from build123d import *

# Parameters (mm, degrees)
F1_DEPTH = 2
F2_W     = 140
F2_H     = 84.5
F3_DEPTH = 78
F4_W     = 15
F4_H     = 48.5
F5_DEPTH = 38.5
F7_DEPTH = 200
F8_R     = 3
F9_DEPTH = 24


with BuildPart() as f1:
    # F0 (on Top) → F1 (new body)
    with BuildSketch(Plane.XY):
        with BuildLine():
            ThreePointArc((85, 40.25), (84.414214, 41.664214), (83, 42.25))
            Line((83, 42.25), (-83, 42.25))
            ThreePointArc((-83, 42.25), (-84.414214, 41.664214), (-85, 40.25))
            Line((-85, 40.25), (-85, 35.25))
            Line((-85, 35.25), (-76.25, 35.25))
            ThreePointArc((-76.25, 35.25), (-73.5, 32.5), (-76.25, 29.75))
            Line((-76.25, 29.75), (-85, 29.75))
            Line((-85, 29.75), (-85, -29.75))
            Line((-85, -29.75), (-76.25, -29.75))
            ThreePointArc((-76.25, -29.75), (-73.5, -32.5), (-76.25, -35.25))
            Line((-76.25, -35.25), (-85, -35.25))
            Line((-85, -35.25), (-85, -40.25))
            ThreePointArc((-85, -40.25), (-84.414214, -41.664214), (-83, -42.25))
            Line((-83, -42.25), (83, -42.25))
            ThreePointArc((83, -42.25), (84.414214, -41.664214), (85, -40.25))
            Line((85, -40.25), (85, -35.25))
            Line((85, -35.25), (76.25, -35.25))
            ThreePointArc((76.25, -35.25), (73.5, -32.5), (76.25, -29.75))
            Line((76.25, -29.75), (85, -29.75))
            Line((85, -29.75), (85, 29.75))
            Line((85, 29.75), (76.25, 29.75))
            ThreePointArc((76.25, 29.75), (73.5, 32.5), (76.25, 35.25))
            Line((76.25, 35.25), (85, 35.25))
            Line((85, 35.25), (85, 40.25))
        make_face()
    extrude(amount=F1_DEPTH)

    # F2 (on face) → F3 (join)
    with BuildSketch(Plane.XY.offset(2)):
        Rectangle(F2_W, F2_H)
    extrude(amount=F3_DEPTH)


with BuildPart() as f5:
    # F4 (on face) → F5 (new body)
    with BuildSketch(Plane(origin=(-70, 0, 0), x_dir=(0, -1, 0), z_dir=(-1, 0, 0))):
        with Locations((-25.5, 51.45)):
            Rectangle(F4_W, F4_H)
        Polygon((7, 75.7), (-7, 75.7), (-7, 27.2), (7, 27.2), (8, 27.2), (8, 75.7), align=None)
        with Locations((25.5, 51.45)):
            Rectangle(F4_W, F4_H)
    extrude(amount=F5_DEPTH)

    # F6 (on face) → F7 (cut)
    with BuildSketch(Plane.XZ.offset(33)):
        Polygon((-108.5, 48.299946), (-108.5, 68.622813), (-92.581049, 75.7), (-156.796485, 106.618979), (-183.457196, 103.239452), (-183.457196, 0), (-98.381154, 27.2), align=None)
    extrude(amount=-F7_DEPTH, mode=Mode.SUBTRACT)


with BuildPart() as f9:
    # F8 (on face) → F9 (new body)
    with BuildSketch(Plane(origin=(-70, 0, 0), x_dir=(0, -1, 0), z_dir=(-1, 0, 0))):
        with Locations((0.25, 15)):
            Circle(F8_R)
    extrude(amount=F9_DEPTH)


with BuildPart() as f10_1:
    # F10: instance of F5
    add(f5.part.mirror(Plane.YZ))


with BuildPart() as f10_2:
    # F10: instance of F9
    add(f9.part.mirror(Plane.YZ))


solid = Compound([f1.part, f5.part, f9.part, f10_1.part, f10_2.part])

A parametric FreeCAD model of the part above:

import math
import FreeCAD as App
import Part
import Sketcher
Q = App.Units.Quantity


def add_polygon(sketch, points):
    """Adds a closed chain of lines whose ends are joined by coincident constraints."""
    first, n = sketch.GeometryCount, len(points)
    for a, b in zip(points, points[1:] + points[:1]):
        sketch.addGeometry(Part.LineSegment(App.Vector(*a, 0), App.Vector(*b, 0)), False)
    for i in range(n):
        sketch.addConstraint(Sketcher.Constraint("Coincident", first + i, 2, first + (i + 1) % n, 1))

doc = App.newDocument("Part")
body = doc.addObject("PartDesign::Body", "Body")

sketch1 = body.newObject("Sketcher::SketchObject", "Sketch")
sketch1.AttachmentSupport = (doc.getObject("XY_Plane"), [""])
sketch1.MapMode = "FlatFace"
sketch1.addGeometry(Part.ArcOfCircle(Part.Circle(App.Vector(83, 40.3, 0), App.Vector(0, 0, 1), 2), math.radians(0), math.radians(90)), False)
sketch1.addGeometry(Part.LineSegment(App.Vector(83, 42.2, 0), App.Vector(-83, 42.2, 0)), False)
sketch1.addGeometry(Part.ArcOfCircle(Part.Circle(App.Vector(-83, 40.3, 0), App.Vector(0, 0, 1), 2), math.radians(90), math.radians(180)), False)
sketch1.addGeometry(Part.LineSegment(App.Vector(-85, 40.2, 0), App.Vector(-85, 35.2, 0)), False)
sketch1.addGeometry(Part.LineSegment(App.Vector(-85, 35.2, 0), App.Vector(-76.2, 35.2, 0)), False)
sketch1.addGeometry(Part.ArcOfCircle(Part.Circle(App.Vector(-76.2, 32.5, 0), App.Vector(0, 0, 1), 2.8), math.radians(-90), math.radians(90)), False)
sketch1.addGeometry(Part.LineSegment(App.Vector(-76.2, 29.8, 0), App.Vector(-85, 29.8, 0)), False)
sketch1.addGeometry(Part.LineSegment(App.Vector(-85, 29.8, 0), App.Vector(-85, -29.8, 0)), False)
sketch1.addGeometry(Part.LineSegment(App.Vector(-85, -29.8, 0), App.Vector(-76.2, -29.8, 0)), False)
sketch1.addGeometry(Part.ArcOfCircle(Part.Circle(App.Vector(-76.2, -32.5, 0), App.Vector(0, 0, 1), 2.8), math.radians(-90), math.radians(90)), False)
sketch1.addGeometry(Part.LineSegment(App.Vector(-76.2, -35.2, 0), App.Vector(-85, -35.2, 0)), False)
sketch1.addGeometry(Part.LineSegment(App.Vector(-85, -35.2, 0), App.Vector(-85, -40.2, 0)), False)
sketch1.addGeometry(Part.ArcOfCircle(Part.Circle(App.Vector(-83, -40.3, 0), App.Vector(0, 0, 1), 2), math.radians(180), math.radians(270)), False)
sketch1.addGeometry(Part.LineSegment(App.Vector(-83, -42.2, 0), App.Vector(83, -42.2, 0)), False)
sketch1.addGeometry(Part.ArcOfCircle(Part.Circle(App.Vector(83, -40.3, 0), App.Vector(0, 0, 1), 2), math.radians(-90), math.radians(0)), False)
sketch1.addGeometry(Part.LineSegment(App.Vector(85, -40.2, 0), App.Vector(85, -35.2, 0)), False)
sketch1.addGeometry(Part.LineSegment(App.Vector(85, -35.2, 0), App.Vector(76.2, -35.2, 0)), False)
sketch1.addGeometry(Part.ArcOfCircle(Part.Circle(App.Vector(76.2, -32.5, 0), App.Vector(0, 0, 1), 2.8), math.radians(90), math.radians(270)), False)
sketch1.addGeometry(Part.LineSegment(App.Vector(76.2, -29.8, 0), App.Vector(85, -29.8, 0)), False)
sketch1.addGeometry(Part.LineSegment(App.Vector(85, -29.8, 0), App.Vector(85, 29.8, 0)), False)
sketch1.addGeometry(Part.LineSegment(App.Vector(85, 29.8, 0), App.Vector(76.2, 29.8, 0)), False)
sketch1.addGeometry(Part.ArcOfCircle(Part.Circle(App.Vector(76.2, 32.5, 0), App.Vector(0, 0, 1), 2.8), math.radians(90), math.radians(270)), False)
sketch1.addGeometry(Part.LineSegment(App.Vector(76.2, 35.2, 0), App.Vector(85, 35.2, 0)), False)
sketch1.addGeometry(Part.LineSegment(App.Vector(85, 35.2, 0), App.Vector(85, 40.2, 0)), False)
sketch1.addConstraint(Sketcher.Constraint("Tangent", 0, 2, 1, 1))
sketch1.addConstraint(Sketcher.Constraint("Tangent", 1, 2, 2, 1))
sketch1.addConstraint(Sketcher.Constraint("Tangent", 2, 2, 3, 1))
sketch1.addConstraint(Sketcher.Constraint("Coincident", 3, 2, 4, 1))
sketch1.addConstraint(Sketcher.Constraint("Tangent", 4, 2, 5, 2))
sketch1.addConstraint(Sketcher.Constraint("Tangent", 5, 1, 6, 1))
sketch1.addConstraint(Sketcher.Constraint("Coincident", 6, 2, 7, 1))
sketch1.addConstraint(Sketcher.Constraint("Coincident", 7, 2, 8, 1))
sketch1.addConstraint(Sketcher.Constraint("Tangent", 8, 2, 9, 2))
sketch1.addConstraint(Sketcher.Constraint("Tangent", 9, 1, 10, 1))
sketch1.addConstraint(Sketcher.Constraint("Coincident", 10, 2, 11, 1))
sketch1.addConstraint(Sketcher.Constraint("Tangent", 11, 2, 12, 1))
sketch1.addConstraint(Sketcher.Constraint("Tangent", 12, 2, 13, 1))
sketch1.addConstraint(Sketcher.Constraint("Tangent", 13, 2, 14, 1))
sketch1.addConstraint(Sketcher.Constraint("Tangent", 14, 2, 15, 1))
sketch1.addConstraint(Sketcher.Constraint("Coincident", 15, 2, 16, 1))
sketch1.addConstraint(Sketcher.Constraint("Tangent", 16, 2, 17, 2))
sketch1.addConstraint(Sketcher.Constraint("Tangent", 17, 1, 18, 1))
sketch1.addConstraint(Sketcher.Constraint("Coincident", 18, 2, 19, 1))
sketch1.addConstraint(Sketcher.Constraint("Coincident", 19, 2, 20, 1))
sketch1.addConstraint(Sketcher.Constraint("Tangent", 20, 2, 21, 2))
sketch1.addConstraint(Sketcher.Constraint("Tangent", 21, 1, 22, 1))
sketch1.addConstraint(Sketcher.Constraint("Coincident", 22, 2, 23, 1))
sketch1.addConstraint(Sketcher.Constraint("Tangent", 23, 2, 0, 1))
sketch1.addConstraint(Sketcher.Constraint("Horizontal", 1))
sketch1.addConstraint(Sketcher.Constraint("Vertical", 3))
sketch1.addConstraint(Sketcher.Constraint("Horizontal", 4))
sketch1.addConstraint(Sketcher.Constraint("Horizontal", 6))
sketch1.addConstraint(Sketcher.Constraint("Vertical", 7))
sketch1.addConstraint(Sketcher.Constraint("Horizontal", 8))
sketch1.addConstraint(Sketcher.Constraint("Horizontal", 10))
sketch1.addConstraint(Sketcher.Constraint("Vertical", 11))
sketch1.addConstraint(Sketcher.Constraint("Horizontal", 13))
sketch1.addConstraint(Sketcher.Constraint("Vertical", 15))
sketch1.addConstraint(Sketcher.Constraint("Horizontal", 16))
sketch1.addConstraint(Sketcher.Constraint("Horizontal", 18))
sketch1.addConstraint(Sketcher.Constraint("Vertical", 19))
sketch1.addConstraint(Sketcher.Constraint("Horizontal", 20))
sketch1.addConstraint(Sketcher.Constraint("Horizontal", 22))
sketch1.addConstraint(Sketcher.Constraint("Vertical", 23))
sketch1.addConstraint(Sketcher.Constraint("Equal", 0, 2))
sketch1.addConstraint(Sketcher.Constraint("Equal", 5, 9))
sketch1.addConstraint(Sketcher.Constraint("Equal", 2, 12))
sketch1.addConstraint(Sketcher.Constraint("Equal", 12, 14))
sketch1.addConstraint(Sketcher.Constraint("Equal", 9, 17))
sketch1.addConstraint(Sketcher.Constraint("Equal", 17, 21))
sketch1.addConstraint(Sketcher.Constraint("Symmetric", 0, 3, 12, 3, -1, 1))
sketch1.addConstraint(Sketcher.Constraint("Symmetric", 5, 3, 17, 3, -1, 1))
sketch1.addConstraint(Sketcher.Constraint("Symmetric", 9, 3, 21, 3, -1, 1))
sketch1.addConstraint(Sketcher.Constraint("Symmetric", 9, 3, 17, 3, -2))
sketch1.addConstraint(Sketcher.Constraint("Vertical", 2, 3, 12, 3))
sketch1.addConstraint(Sketcher.Constraint("Vertical", 0, 3, 14, 3))
sketch1.addConstraint(Sketcher.Constraint("Vertical", 3, 2, 6, 2))
sketch1.addConstraint(Sketcher.Constraint("Vertical", 15, 2, 18, 2))
sketch1.addConstraint(Sketcher.Constraint("Radius", 0, Q("1.999999 mm")))
sketch1.addConstraint(Sketcher.Constraint("DistanceX", 1, 2, 1, 1, Q("166 mm")))
sketch1.addConstraint(Sketcher.Constraint("DistanceY", 3, 2, 3, 1, Q("5 mm")))
sketch1.addConstraint(Sketcher.Constraint("Radius", 5, Q("2.75 mm")))
sketch1.addConstraint(Sketcher.Constraint("DistanceY", 7, 2, 7, 1, Q("59.5 mm")))
sketch1.addConstraint(Sketcher.Constraint("DistanceX", 4, 1, 4, 2, Q("8.75 mm")))
pad1 = body.newObject("PartDesign::Pad", "Pad")
pad1.Profile = sketch1
pad1.Length = 2

sketch2 = body.newObject("Sketcher::SketchObject", "Sketch001")
sketch2.AttachmentSupport = (doc.getObject("XY_Plane"), [""])
sketch2.MapMode = "FlatFace"
sketch2.AttachmentOffset = App.Placement(App.Vector(0, 0, 2), App.Rotation())
add_polygon(sketch2, [(-70, 42), (-70, -42), (70, -42), (70, 42)])
sketch2.addConstraint(Sketcher.Constraint("Vertical", 0))
sketch2.addConstraint(Sketcher.Constraint("Horizontal", 1))
sketch2.addConstraint(Sketcher.Constraint("Vertical", 2))
sketch2.addConstraint(Sketcher.Constraint("Horizontal", 3))
sketch2.addConstraint(Sketcher.Constraint("Symmetric", 0, 2, 2, 2, -1, 1))
sketch2.addConstraint(Sketcher.Constraint("DistanceX", 1, 1, 1, 2, Q("140 mm")))
sketch2.addConstraint(Sketcher.Constraint("DistanceY", 0, 2, 0, 1, Q("84.5 mm")))
pad2 = body.newObject("PartDesign::Pad", "Pad001")
pad2.Profile = sketch2
pad2.Length = 78
body2 = doc.addObject("PartDesign::Body", "Body001")
body2.AllowCompound = True

sketch3 = body2.newObject("Sketcher::SketchObject", "Sketch002")
sketch3.AttachmentSupport = (doc.getObject("YZ_Plane001"), [""])
sketch3.MapMode = "FlatFace"
sketch3.AttachmentOffset = App.Placement(App.Vector(0, 0, -70), App.Rotation())
add_polygon(sketch3, [(33, 76), (33, 27), (18, 27), (18, 76)])
add_polygon(sketch3, [(7, 76), (7, 27), (-8, 27), (-8, 76)])
add_polygon(sketch3, [(-18, 76), (-18, 27), (-33, 27), (-33, 76)])
sketch3.addConstraint(Sketcher.Constraint("Vertical", 0))
sketch3.addConstraint(Sketcher.Constraint("Horizontal", 1))
sketch3.addConstraint(Sketcher.Constraint("Vertical", 2))
sketch3.addConstraint(Sketcher.Constraint("Horizontal", 3))
sketch3.addConstraint(Sketcher.Constraint("Vertical", 4))
sketch3.addConstraint(Sketcher.Constraint("Horizontal", 5))
sketch3.addConstraint(Sketcher.Constraint("Vertical", 6))
sketch3.addConstraint(Sketcher.Constraint("Horizontal", 7))
sketch3.addConstraint(Sketcher.Constraint("Vertical", 8))
sketch3.addConstraint(Sketcher.Constraint("Horizontal", 9))
sketch3.addConstraint(Sketcher.Constraint("Vertical", 10))
sketch3.addConstraint(Sketcher.Constraint("Horizontal", 11))
sketch3.addConstraint(Sketcher.Constraint("Symmetric", 1, 2, 8, 2, -2))
sketch3.addConstraint(Sketcher.Constraint("Symmetric", 3, 2, 10, 2, -2))
sketch3.addConstraint(Sketcher.Constraint("Horizontal", 1, 2, 4, 2))
sketch3.addConstraint(Sketcher.Constraint("Horizontal", 3, 2, 6, 2))
sketch3.addConstraint(Sketcher.Constraint("Equal", 3, 5))
sketch3.addConstraint(Sketcher.Constraint("DistanceX", 1, 2, 1, 1, Q("15 mm")))
sketch3.addConstraint(Sketcher.Constraint("DistanceY", 0, 2, 0, 1, Q("48.5 mm")))
sketch3.addConstraint(Sketcher.Constraint("DistanceX", -1, 1, 0, 2, Q("33 mm")))
sketch3.addConstraint(Sketcher.Constraint("DistanceX", -1, 1, 4, 2, Q("7 mm")))
sketch3.addConstraint(Sketcher.Constraint("DistanceY", -1, 1, 0, 2, Q("27.2 mm")))
pad3 = body2.newObject("PartDesign::Pad", "Pad002")
pad3.Profile = sketch3
pad3.Length = 38.5
pad3.Reversed = True

sketch4 = body2.newObject("Sketcher::SketchObject", "Sketch003")
sketch4.AttachmentSupport = (doc.getObject("XZ_Plane001"), [""])
sketch4.MapMode = "FlatFace"
sketch4.AttachmentOffset = App.Placement(App.Vector(0, 0, 33), App.Rotation())
add_polygon(sketch4, [(-108, 48), (-108, 69), (-93, 76), (-157, 107), (-183, 103), (-183, 0), (-98, 27)])
sketch4.addConstraint(Sketcher.Constraint("Vertical", 0))
sketch4.addConstraint(Sketcher.Constraint("Vertical", 4))
sketch4.addConstraint(Sketcher.Constraint("PointOnObject", 4, 2, -1))
sketch4.addConstraint(Sketcher.Constraint("DistanceX", 0, 2, -1, 1, Q("108.5 mm")))
sketch4.addConstraint(Sketcher.Constraint("DistanceY", -1, 1, 1, 2, Q("75.7 mm")))
sketch4.addConstraint(Sketcher.Constraint("DistanceY", -1, 1, 5, 2, Q("27.2 mm")))
sketch4.addConstraint(Sketcher.Constraint("DistanceY", 4, 2, 4, 1, Q("103.239452 mm")))
sketch4.addConstraint(Sketcher.Constraint("Distance", 1, Q("17.421239 mm")))
sketch4.addConstraint(Sketcher.Constraint("Distance", 2, Q("71.271351 mm")))
sketch4.addConstraint(Sketcher.Constraint("Distance", 5, Q("89.31838 mm")))
sketch4.addConstraint(Sketcher.Constraint("Distance", 6, Q("23.400828 mm")))
sketch4.addConstraint(Sketcher.Constraint("DistanceY", 0, 1, 0, 2, Q("20.322867 mm")))
sketch4.addConstraint(Sketcher.Constraint("DistanceX", 1, 2, -1, 1, Q("92.581049 mm")))
sketch4.addConstraint(Sketcher.Constraint("DistanceY", -1, 1, 2, 2, Q("106.618979 mm")))
pocket1 = body2.newObject("PartDesign::Pocket", "Pocket")
pocket1.Profile = sketch4
pocket1.Length = 200
body3 = doc.addObject("PartDesign::Body", "Body002")

sketch5 = body3.newObject("Sketcher::SketchObject", "Sketch004")
sketch5.AttachmentSupport = (doc.getObject("YZ_Plane002"), [""])
sketch5.MapMode = "FlatFace"
sketch5.AttachmentOffset = App.Placement(App.Vector(0, 0, -70), App.Rotation())
sketch5.addGeometry(Part.Circle(App.Vector(-0.2, 15, 0), App.Vector(0, 0, 1), 3), False)
sketch5.addConstraint(Sketcher.Constraint("Diameter", 0, Q("6 mm")))
sketch5.addConstraint(Sketcher.Constraint("DistanceY", -1, 1, 0, 3, Q("15 mm")))
sketch5.addConstraint(Sketcher.Constraint("DistanceX", 0, 3, -1, 1, Q("0.25 mm")))
pad4 = body3.newObject("PartDesign::Pad", "Pad003")
pad4.Profile = sketch5
pad4.Length = 24
pad4.Reversed = True
body4 = doc.addObject("PartDesign::Body", "Body003")
body4.AllowCompound = True
doc.recompute()

mirroring = doc.addObject("Part::Mirroring", "Mirroring")
mirroring.Source = body2
mirroring.Base = App.Vector(0, 0, 0)
mirroring.Normal = App.Vector(1, 0, 0)
body4.BaseFeature = mirroring
doc.recompute()
body5 = doc.addObject("PartDesign::Body", "Body004")
doc.recompute()

mirroring2 = doc.addObject("Part::Mirroring", "Mirroring001")
mirroring2.Source = body3
mirroring2.Base = App.Vector(0, 0, 0)
mirroring2.Normal = App.Vector(1, 0, 0)
body5.BaseFeature = mirroring2
doc.recompute()
mirroring.Visibility = False
mirroring2.Visibility = False

doc.recompute()
